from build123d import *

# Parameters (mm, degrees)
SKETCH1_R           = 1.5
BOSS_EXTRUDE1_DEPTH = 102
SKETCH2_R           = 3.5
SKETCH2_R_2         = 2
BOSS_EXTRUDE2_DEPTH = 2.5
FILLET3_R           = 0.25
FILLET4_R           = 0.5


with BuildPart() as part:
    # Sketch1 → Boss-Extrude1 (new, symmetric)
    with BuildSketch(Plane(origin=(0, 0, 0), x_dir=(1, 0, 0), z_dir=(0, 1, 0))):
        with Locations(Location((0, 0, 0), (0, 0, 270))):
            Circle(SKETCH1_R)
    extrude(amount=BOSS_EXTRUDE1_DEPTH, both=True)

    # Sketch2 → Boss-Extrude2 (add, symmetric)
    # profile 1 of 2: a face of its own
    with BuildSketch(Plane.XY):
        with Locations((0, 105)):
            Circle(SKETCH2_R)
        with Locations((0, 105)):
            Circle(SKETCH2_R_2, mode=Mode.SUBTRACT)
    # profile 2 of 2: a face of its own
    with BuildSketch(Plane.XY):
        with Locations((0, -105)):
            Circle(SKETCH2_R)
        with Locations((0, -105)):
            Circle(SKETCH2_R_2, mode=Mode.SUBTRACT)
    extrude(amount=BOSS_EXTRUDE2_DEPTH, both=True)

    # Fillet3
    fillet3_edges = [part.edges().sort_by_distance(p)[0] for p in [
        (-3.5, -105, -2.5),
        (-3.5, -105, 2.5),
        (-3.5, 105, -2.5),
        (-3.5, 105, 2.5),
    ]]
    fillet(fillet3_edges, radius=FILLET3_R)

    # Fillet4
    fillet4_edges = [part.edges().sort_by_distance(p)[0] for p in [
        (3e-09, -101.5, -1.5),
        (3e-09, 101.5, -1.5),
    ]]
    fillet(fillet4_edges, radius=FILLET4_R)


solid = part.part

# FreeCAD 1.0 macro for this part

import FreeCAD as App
import Part
import Sketcher


def edges_at(feature, points):
    """Names of the edges that pass closest to the given points."""
    edges = feature.Shape.Edges
    near = lambda p: min(range(len(edges)), key=lambda i: edges[i].distToShape(Part.Vertex(*p))[0])
    return sorted({f"Edge{near(p) + 1}" for p in points})

doc = App.newDocument("Part")
body = doc.addObject("PartDesign::Body", "Body")

sketch1 = doc.addObject("Sketcher::SketchObject", "Sketch")
body.addObject(sketch1)
sketch1.AttachmentSupport = (doc.XZ_Plane, [""])
sketch1.MapMode = "FlatFace"
sketch1.addGeometry(Part.Circle(App.Vector(0, 0, 0), App.Vector(0, 0, 1), 1.5), False)
sketch1.addConstraint([
    Sketcher.Constraint("Coincident", 0, 3, -1, 1),
    Sketcher.Constraint("Diameter", 0, 3.0),
])
pad1 = doc.addObject("PartDesign::Pad", "Pad")
body.addObject(pad1)
pad1.Profile = sketch1
pad1.Length = 204
pad1.Midplane = True

sketch2 = doc.addObject("Sketcher::SketchObject", "Sketch001")
body.addObject(sketch2)
sketch2.AttachmentSupport = (doc.XY_Plane, [""])
sketch2.MapMode = "FlatFace"
sketch2.addGeometry([
    Part.Circle(App.Vector(0, 105, 0), App.Vector(0, 0, 1), 3.5),
    Part.Circle(App.Vector(0, 105, 0), App.Vector(0, 0, 1), 2),
    Part.Circle(App.Vector(0, -105, 0), App.Vector(0, 0, 1), 3.5),
    Part.Circle(App.Vector(0, -105, 0), App.Vector(0, 0, 1), 2),
], False)
sketch2.addConstraint([
    Sketcher.Constraint("Coincident", 1, 3, 0, 3),
    Sketcher.Constraint("Coincident", 3, 3, 2, 3),
    Sketcher.Constraint("Equal", 0, 2),
    Sketcher.Constraint("Equal", 1, 3),
    Sketcher.Constraint("Symmetric", 0, 3, 2, 3, -1, 1),
    Sketcher.Constraint("PointOnObject", 0, 3, -2),
    Sketcher.Constraint("Diameter", 0, 7.0),
    Sketcher.Constraint("Diameter", 1, 4.0),
    Sketcher.Constraint("DistanceY", -1, 1, 0, 3, 105.0),
])
pad2 = doc.addObject("PartDesign::Pad", "Pad001")
body.addObject(pad2)
pad2.Profile = sketch2
pad2.Length = 5
pad2.Midplane = True
doc.recompute()

fillet = doc.addObject("PartDesign::Fillet", "Fillet")
body.addObject(fillet)
fillet.Base = (pad2, edges_at(pad2, [
    (-3.5, -105, -2.5),
    (-3.5, -105, 2.5),
    (-3.5, 105, -2.5),
    (-3.5, 105, 2.5),
]))
fillet.Radius = 0.25
doc.recompute()

fillet2 = doc.addObject("PartDesign::Fillet", "Fillet001")
body.addObject(fillet2)
fillet2.Base = (fillet, edges_at(fillet, [(0, -101.5, -1.5), (0, 101.5, -1.5)]))
fillet2.Radius = 0.5

doc.recompute()
